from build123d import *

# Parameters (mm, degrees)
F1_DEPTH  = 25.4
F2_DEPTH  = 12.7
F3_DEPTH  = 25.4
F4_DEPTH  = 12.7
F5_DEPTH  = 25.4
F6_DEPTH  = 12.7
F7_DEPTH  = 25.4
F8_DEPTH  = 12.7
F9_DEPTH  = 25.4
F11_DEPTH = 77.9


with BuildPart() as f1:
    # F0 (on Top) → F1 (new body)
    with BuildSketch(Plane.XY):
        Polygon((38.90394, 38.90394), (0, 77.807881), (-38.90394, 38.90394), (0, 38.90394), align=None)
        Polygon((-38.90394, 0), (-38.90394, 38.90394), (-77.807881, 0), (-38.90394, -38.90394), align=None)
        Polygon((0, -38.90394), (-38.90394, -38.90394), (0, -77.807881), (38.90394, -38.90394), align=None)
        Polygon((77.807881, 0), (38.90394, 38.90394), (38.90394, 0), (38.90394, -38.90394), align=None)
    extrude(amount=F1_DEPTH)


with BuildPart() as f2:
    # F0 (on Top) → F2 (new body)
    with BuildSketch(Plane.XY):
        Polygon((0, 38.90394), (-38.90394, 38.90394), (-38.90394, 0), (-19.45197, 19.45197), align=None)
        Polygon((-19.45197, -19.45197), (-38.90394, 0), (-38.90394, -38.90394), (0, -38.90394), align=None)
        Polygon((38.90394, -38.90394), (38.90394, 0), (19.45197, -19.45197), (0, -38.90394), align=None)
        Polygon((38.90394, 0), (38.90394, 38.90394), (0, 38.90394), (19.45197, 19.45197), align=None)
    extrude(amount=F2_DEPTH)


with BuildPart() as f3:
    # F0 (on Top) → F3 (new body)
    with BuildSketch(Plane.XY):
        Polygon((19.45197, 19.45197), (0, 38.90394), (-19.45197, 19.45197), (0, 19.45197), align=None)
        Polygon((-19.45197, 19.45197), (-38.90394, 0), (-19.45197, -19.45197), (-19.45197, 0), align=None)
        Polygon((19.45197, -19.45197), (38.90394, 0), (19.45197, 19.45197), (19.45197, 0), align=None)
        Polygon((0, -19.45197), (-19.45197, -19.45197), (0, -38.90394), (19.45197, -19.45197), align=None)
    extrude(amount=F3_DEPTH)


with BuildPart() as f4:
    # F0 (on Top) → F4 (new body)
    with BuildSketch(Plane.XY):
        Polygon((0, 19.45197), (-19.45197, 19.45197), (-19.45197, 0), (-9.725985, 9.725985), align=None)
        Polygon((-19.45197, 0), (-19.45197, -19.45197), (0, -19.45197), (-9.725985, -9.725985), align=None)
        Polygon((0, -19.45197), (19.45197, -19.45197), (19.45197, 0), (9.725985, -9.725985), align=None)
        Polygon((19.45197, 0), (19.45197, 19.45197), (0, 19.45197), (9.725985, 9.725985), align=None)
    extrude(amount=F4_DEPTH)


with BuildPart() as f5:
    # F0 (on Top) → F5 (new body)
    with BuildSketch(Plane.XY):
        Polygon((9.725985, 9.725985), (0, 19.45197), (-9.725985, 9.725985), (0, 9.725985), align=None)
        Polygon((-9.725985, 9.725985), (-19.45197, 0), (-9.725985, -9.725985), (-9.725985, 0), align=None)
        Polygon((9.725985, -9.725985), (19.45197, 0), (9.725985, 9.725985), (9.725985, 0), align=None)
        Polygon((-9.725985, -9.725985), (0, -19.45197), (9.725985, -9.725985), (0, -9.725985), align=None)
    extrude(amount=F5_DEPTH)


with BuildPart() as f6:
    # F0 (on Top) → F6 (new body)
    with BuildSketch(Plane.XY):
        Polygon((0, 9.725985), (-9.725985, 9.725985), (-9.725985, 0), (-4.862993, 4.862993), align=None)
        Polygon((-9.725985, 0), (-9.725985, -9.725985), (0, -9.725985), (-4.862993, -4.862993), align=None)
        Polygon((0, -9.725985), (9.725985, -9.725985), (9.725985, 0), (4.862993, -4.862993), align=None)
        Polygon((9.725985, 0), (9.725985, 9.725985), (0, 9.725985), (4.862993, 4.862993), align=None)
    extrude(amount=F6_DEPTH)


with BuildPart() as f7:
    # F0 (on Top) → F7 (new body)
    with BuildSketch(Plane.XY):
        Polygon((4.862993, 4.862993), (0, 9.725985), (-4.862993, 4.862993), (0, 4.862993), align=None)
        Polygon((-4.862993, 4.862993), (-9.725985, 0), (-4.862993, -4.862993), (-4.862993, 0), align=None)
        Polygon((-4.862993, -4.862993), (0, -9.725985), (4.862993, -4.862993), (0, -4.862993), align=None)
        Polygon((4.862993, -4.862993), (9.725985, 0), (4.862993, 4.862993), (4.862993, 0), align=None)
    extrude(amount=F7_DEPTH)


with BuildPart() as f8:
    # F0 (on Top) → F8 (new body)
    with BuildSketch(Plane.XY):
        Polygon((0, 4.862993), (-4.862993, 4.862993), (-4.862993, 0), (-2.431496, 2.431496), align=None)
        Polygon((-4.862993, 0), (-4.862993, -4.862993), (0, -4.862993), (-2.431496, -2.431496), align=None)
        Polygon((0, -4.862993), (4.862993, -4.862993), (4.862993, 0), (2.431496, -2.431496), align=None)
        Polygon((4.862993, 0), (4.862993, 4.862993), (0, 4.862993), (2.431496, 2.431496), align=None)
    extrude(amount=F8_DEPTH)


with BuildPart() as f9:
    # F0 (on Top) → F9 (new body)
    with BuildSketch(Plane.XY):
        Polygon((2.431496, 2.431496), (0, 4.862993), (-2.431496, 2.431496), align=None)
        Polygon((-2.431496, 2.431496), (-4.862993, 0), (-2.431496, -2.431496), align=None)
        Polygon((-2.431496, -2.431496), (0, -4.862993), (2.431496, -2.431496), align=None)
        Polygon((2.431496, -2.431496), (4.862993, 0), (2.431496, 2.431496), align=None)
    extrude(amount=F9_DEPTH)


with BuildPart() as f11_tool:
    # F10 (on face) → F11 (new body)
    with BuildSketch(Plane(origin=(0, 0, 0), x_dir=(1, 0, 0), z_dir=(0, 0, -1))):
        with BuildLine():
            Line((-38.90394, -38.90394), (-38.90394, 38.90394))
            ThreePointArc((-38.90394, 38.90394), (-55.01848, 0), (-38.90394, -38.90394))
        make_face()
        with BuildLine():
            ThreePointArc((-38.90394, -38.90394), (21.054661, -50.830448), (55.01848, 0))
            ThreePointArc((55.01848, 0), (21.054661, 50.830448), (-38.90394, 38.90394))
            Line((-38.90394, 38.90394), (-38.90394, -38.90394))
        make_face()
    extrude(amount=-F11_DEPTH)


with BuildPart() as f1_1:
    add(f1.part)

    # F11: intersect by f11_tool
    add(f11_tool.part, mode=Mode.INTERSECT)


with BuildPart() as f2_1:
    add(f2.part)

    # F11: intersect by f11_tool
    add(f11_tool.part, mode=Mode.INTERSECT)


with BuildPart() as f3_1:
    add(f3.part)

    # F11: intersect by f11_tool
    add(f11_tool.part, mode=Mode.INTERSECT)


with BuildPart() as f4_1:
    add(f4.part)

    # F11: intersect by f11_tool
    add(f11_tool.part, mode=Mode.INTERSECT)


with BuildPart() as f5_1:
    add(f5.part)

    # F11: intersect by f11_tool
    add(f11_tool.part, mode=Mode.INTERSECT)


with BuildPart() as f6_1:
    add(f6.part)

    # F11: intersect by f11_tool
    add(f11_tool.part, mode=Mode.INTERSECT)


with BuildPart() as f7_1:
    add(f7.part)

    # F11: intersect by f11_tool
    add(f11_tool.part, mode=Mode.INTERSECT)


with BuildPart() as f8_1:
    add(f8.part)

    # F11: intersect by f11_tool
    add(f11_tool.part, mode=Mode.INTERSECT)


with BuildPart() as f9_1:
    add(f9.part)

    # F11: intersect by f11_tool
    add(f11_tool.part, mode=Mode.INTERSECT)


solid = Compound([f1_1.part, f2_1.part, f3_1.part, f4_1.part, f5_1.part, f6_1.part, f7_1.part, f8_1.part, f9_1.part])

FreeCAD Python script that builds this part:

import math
import FreeCAD as App
import Part
import Sketcher
from FreeCAD import Vector
Q = App.Units.Quantity

doc = App.newDocument("Part")
body = doc.addObject("PartDesign::Body", "Body")
body.AllowCompound = True

# Sketch on XY plane
sketch1 = body.newObject("Sketcher::SketchObject", "Sketch")
sketch1.AttachmentSupport = (doc.getObject("XY_Plane"), [""])
sketch1.MapMode = "FlatFace"
sketch1.addGeometry([
    Part.LineSegment(Vector(39, 39, 0), Vector(0, 78, 0)),  # 0
    Part.LineSegment(Vector(0, 78, 0), Vector(-39, 39, 0)),  # 1
    Part.LineSegment(Vector(-39, 39, 0), Vector(39, 39, 0)),  # 2
    Part.LineSegment(Vector(-39, 39, 0), Vector(-78, 0, 0)),  # 3
    Part.LineSegment(Vector(-78, 0, 0), Vector(-39, -39, 0)),  # 4
    Part.LineSegment(Vector(-39, -39, 0), Vector(-39, 39, 0)),  # 5
    Part.LineSegment(Vector(-39, -39, 0), Vector(0, -78, 0)),  # 6
    Part.LineSegment(Vector(0, -78, 0), Vector(39, -39, 0)),  # 7
    Part.LineSegment(Vector(39, -39, 0), Vector(-39, -39, 0)),  # 8
    Part.LineSegment(Vector(78, 0, 0), Vector(39, 39, 0)),  # 9
    Part.LineSegment(Vector(39, 39, 0), Vector(39, -39, 0)),  # 10
    Part.LineSegment(Vector(39, -39, 0), Vector(78, 0, 0)),  # 11
], False)
sketch1.addConstraint([
    Sketcher.Constraint("Coincident", 0, 2, 1, 1),
    Sketcher.Constraint("Coincident", 1, 2, 2, 1),
    Sketcher.Constraint("Coincident", 2, 2, 0, 1),
    Sketcher.Constraint("Coincident", 3, 2, 4, 1),
    Sketcher.Constraint("Coincident", 4, 2, 5, 1),
    Sketcher.Constraint("Coincident", 5, 2, 3, 1),
    Sketcher.Constraint("Coincident", 6, 2, 7, 1),
    Sketcher.Constraint("Coincident", 7, 2, 8, 1),
    Sketcher.Constraint("Coincident", 8, 2, 6, 1),
    Sketcher.Constraint("Coincident", 9, 2, 10, 1),
    Sketcher.Constraint("Coincident", 10, 2, 11, 1),
    Sketcher.Constraint("Coincident", 11, 2, 9, 1),
    Sketcher.Constraint("Horizontal", 2),
    Sketcher.Constraint("Vertical", 5),
    Sketcher.Constraint("Horizontal", 8),
    Sketcher.Constraint("Vertical", 10),
    Sketcher.Constraint("Coincident", 5, 2, 1, 2),
    Sketcher.Constraint("Coincident", 8, 2, 4, 2),
    Sketcher.Constraint("Coincident", 9, 2, 2, 2),
    Sketcher.Constraint("Coincident", 10, 2, 7, 2),
    Sketcher.Constraint("Symmetric", 2, 2, 4, 2, -1, 1),
    Sketcher.Constraint("Symmetric", 0, 2, 6, 2, -1, 1),
    Sketcher.Constraint("Symmetric", 3, 2, 11, 2, -1, 1),
    Sketcher.Constraint("PointOnObject", 0, 2, -2),
    Sketcher.Constraint("PointOnObject", 3, 2, -1),
    Sketcher.Constraint("Perpendicular", 0, 1),
    Sketcher.Constraint("Parallel", 1, 3),
    Sketcher.Constraint("Equal", 8, 5),
    Sketcher.Constraint("DistanceX", 2, 1, 2, 2, 77.80788),
])
pad1 = body.newObject("PartDesign::Pad", "Pad")
pad1.Profile = sketch1
pad1.Length = Q("1 in")
body2 = doc.addObject("PartDesign::Body", "Body001")
body2.AllowCompound = True

# Sketch on XY plane
sketch2 = body2.newObject("Sketcher::SketchObject", "Sketch001")
sketch2.AttachmentSupport = (doc.getObject("XY_Plane001"), [""])
sketch2.MapMode = "FlatFace"
sketch2.addGeometry([
    Part.LineSegment(Vector(0, 39, 0), Vector(-39, 39, 0)),  # 0
    Part.LineSegment(Vector(-39, 39, 0), Vector(-39, 0, 0)),  # 1
    Part.LineSegment(Vector(-39, 0, 0), Vector(0, 39, 0)),  # 2
    Part.LineSegment(Vector(-39, 0, 0), Vector(-39, -39, 0)),  # 3
    Part.LineSegment(Vector(-39, -39, 0), Vector(0, -39, 0)),  # 4
    Part.LineSegment(Vector(0, -39, 0), Vector(-39, 0, 0)),  # 5
    Part.LineSegment(Vector(39, -39, 0), Vector(39, 0, 0)),  # 6
    Part.LineSegment(Vector(39, 0, 0), Vector(0, -39, 0)),  # 7
    Part.LineSegment(Vector(0, -39, 0), Vector(39, -39, 0)),  # 8
    Part.LineSegment(Vector(39, 0, 0), Vector(39, 39, 0)),  # 9
    Part.LineSegment(Vector(39, 39, 0), Vector(0, 39, 0)),  # 10
    Part.LineSegment(Vector(0, 39, 0), Vector(39, 0, 0)),  # 11
], False)
sketch2.addConstraint([
    Sketcher.Constraint("Coincident", 0, 2, 1, 1),
    Sketcher.Constraint("Coincident", 1, 2, 2, 1),
    Sketcher.Constraint("Coincident", 2, 2, 0, 1),
    Sketcher.Constraint("Coincident", 3, 2, 4, 1),
    Sketcher.Constraint("Coincident", 4, 2, 5, 1),
    Sketcher.Constraint("Coincident", 5, 2, 3, 1),
    Sketcher.Constraint("Coincident", 6, 2, 7, 1),
    Sketcher.Constraint("Coincident", 7, 2, 8, 1),
    Sketcher.Constraint("Coincident", 8, 2, 6, 1),
    Sketcher.Constraint("Coincident", 9, 2, 10, 1),
    Sketcher.Constraint("Coincident", 10, 2, 11, 1),
    Sketcher.Constraint("Coincident", 11, 2, 9, 1),
    Sketcher.Constraint("Horizontal", 0),
    Sketcher.Constraint("Vertical", 1),
    Sketcher.Constraint("Vertical", 3),
    Sketcher.Constraint("Horizontal", 4),
    Sketcher.Constraint("Vertical", 6),
    Sketcher.Constraint("Horizontal", 8),
    Sketcher.Constraint("Vertical", 9),
    Sketcher.Constraint("Horizontal", 10),
    Sketcher.Constraint("Coincident", 5, 2, 1, 2),
    Sketcher.Constraint("Coincident", 7, 2, 4, 2),
    Sketcher.Constraint("Coincident", 10, 2, 2, 2),
    Sketcher.Constraint("Coincident", 11, 2, 6, 2),
    Sketcher.Constraint("Symmetric", 2, 2, 4, 2, -1, 1),
    Sketcher.Constraint("Symmetric", 1, 2, 6, 2, -1, 1),
    Sketcher.Constraint("PointOnObject", 1, 2, -1),
    Sketcher.Constraint("PointOnObject", 2, 2, -2),
    Sketcher.Constraint("Perpendicular", 2, 5),
    Sketcher.Constraint("DistanceX", 0, 2, 0, 1, 38.90394),
])
pad2 = body2.newObject("PartDesign::Pad", "Pad001")
pad2.Profile = sketch2
pad2.Length = Q("0.5 in")
body3 = doc.addObject("PartDesign::Body", "Body002")
body3.AllowCompound = True

# Sketch on XY plane
sketch3 = body3.newObject("Sketcher::SketchObject", "Sketch002")
sketch3.AttachmentSupport = (doc.getObject("XY_Plane002"), [""])
sketch3.MapMode = "FlatFace"
sketch3.addGeometry([
    Part.LineSegment(Vector(19, 19, 0), Vector(0, 39, 0)),  # 0
    Part.LineSegment(Vector(0, 39, 0), Vector(-19, 19, 0)),  # 1
    Part.LineSegment(Vector(-19, 19, 0), Vector(19, 19, 0)),  # 2
    Part.LineSegment(Vector(-19, 19, 0), Vector(-39, 0, 0)),  # 3
    Part.LineSegment(Vector(-39, 0, 0), Vector(-19, -19, 0)),  # 4
    Part.LineSegment(Vector(-19, -19, 0), Vector(-19, 19, 0)),  # 5
    Part.LineSegment(Vector(19, -19, 0), Vector(39, 0, 0)),  # 6
    Part.LineSegment(Vector(39, 0, 0), Vector(19, 19, 0)),  # 7
    Part.LineSegment(Vector(19, 19, 0), Vector(19, -19, 0)),  # 8
    Part.LineSegment(Vector(-19, -19, 0), Vector(0, -39, 0)),  # 9
    Part.LineSegment(Vector(0, -39, 0), Vector(19, -19, 0)),  # 10
    Part.LineSegment(Vector(19, -19, 0), Vector(-19, -19, 0)),  # 11
], False)
sketch3.addConstraint([
    Sketcher.Constraint("Coincident", 0, 2, 1, 1),
    Sketcher.Constraint("Coincident", 1, 2, 2, 1),
    Sketcher.Constraint("Coincident", 2, 2, 0, 1),
    Sketcher.Constraint("Coincident", 3, 2, 4, 1),
    Sketcher.Constraint("Coincident", 4, 2, 5, 1),
    Sketcher.Constraint("Coincident", 5, 2, 3, 1),
    Sketcher.Constraint("Coincident", 6, 2, 7, 1),
    Sketcher.Constraint("Coincident", 7, 2, 8, 1),
    Sketcher.Constraint("Coincident", 8, 2, 6, 1),
    Sketcher.Constraint("Coincident", 9, 2, 10, 1),
    Sketcher.Constraint("Coincident", 10, 2, 11, 1),
    Sketcher.Constraint("Coincident", 11, 2, 9, 1),
    Sketcher.Constraint("Horizontal", 2),
    Sketcher.Constraint("Vertical", 5),
    Sketcher.Constraint("Vertical", 8),
    Sketcher.Constraint("Horizontal", 11),
    Sketcher.Constraint("Coincident", 5, 2, 1, 2),
    Sketcher.Constraint("Coincident", 7, 2, 2, 2),
    Sketcher.Constraint("Coincident", 10, 2, 8, 2),
    Sketcher.Constraint("Coincident", 11, 2, 4, 2),
    Sketcher.Constraint("Symmetric", 2, 2, 4, 2, -1, 1),
    Sketcher.Constraint("Symmetric", 3, 2, 6, 2, -1, 1),
    Sketcher.Constraint("Symmetric", 0, 2, 9, 2, -1, 1),
    Sketcher.Constraint("PointOnObject", 0, 2, -2),
    Sketcher.Constraint("PointOnObject", 3, 2, -1),
    Sketcher.Constraint("Perpendicular", 0, 1),
    Sketcher.Constraint("Parallel", 1, 3),
    Sketcher.Constraint("Equal", 11, 5),
    Sketcher.Constraint("DistanceX", 2, 1, 2, 2, 38.90394),
])
pad3 = body3.newObject("PartDesign::Pad", "Pad002")
pad3.Profile = sketch3
pad3.Length = Q("1 in")
body4 = doc.addObject("PartDesign::Body", "Body003")
body4.AllowCompound = True

# Sketch on XY plane
sketch4 = body4.newObject("Sketcher::SketchObject", "Sketch003")
sketch4.AttachmentSupport = (doc.getObject("XY_Plane003"), [""])
sketch4.MapMode = "FlatFace"
sketch4.addGeometry([
    Part.LineSegment(Vector(0, 19, 0), Vector(-19, 19, 0)),  # 0
    Part.LineSegment(Vector(-19, 19, 0), Vector(-19, 0, 0)),  # 1
    Part.LineSegment(Vector(-19, 0, 0), Vector(0, 19, 0)),  # 2
    Part.LineSegment(Vector(-19, 0, 0), Vector(-19, -19, 0)),  # 3
    Part.LineSegment(Vector(-19, -19, 0), Vector(0, -19, 0)),  # 4
    Part.LineSegment(Vector(0, -19, 0), Vector(-19, 0, 0)),  # 5
    Part.LineSegment(Vector(0, -19, 0), Vector(19, -19, 0)),  # 6
    Part.LineSegment(Vector(19, -19, 0), Vector(19, 0, 0)),  # 7
    Part.LineSegment(Vector(19, 0, 0), Vector(0, -19, 0)),  # 8
    Part.LineSegment(Vector(19, 0, 0), Vector(19, 19, 0)),  # 9
    Part.LineSegment(Vector(19, 19, 0), Vector(0, 19, 0)),  # 10
    Part.LineSegment(Vector(0, 19, 0), Vector(19, 0, 0)),  # 11
], False)
sketch4.addConstraint([
    Sketcher.Constraint("Coincident", 0, 2, 1, 1),
    Sketcher.Constraint("Coincident", 1, 2, 2, 1),
    Sketcher.Constraint("Coincident", 2, 2, 0, 1),
    Sketcher.Constraint("Coincident", 3, 2, 4, 1),
    Sketcher.Constraint("Coincident", 4, 2, 5, 1),
    Sketcher.Constraint("Coincident", 5, 2, 3, 1),
    Sketcher.Constraint("Coincident", 6, 2, 7, 1),
    Sketcher.Constraint("Coincident", 7, 2, 8, 1),
    Sketcher.Constraint("Coincident", 8, 2, 6, 1),
    Sketcher.Constraint("Coincident", 9, 2, 10, 1),
    Sketcher.Constraint("Coincident", 10, 2, 11, 1),
    Sketcher.Constraint("Coincident", 11, 2, 9, 1),
    Sketcher.Constraint("Horizontal", 0),
    Sketcher.Constraint("Vertical", 1),
    Sketcher.Constraint("Vertical", 3),
    Sketcher.Constraint("Horizontal", 4),
    Sketcher.Constraint("Horizontal", 6),
    Sketcher.Constraint("Vertical", 7),
    Sketcher.Constraint("Vertical", 9),
    Sketcher.Constraint("Horizontal", 10),
    Sketcher.Constraint("Coincident", 5, 2, 1, 2),
    Sketcher.Constraint("Coincident", 8, 2, 4, 2),
    Sketcher.Constraint("Coincident", 10, 2, 2, 2),
    Sketcher.Constraint("Coincident", 11, 2, 7, 2),
    Sketcher.Constraint("Symmetric", 2, 2, 4, 2, -1, 1),
    Sketcher.Constraint("Symmetric", 1, 2, 7, 2, -1, 1),
    Sketcher.Constraint("PointOnObject", 1, 2, -1),
    Sketcher.Constraint("PointOnObject", 2, 2, -2),
    Sketcher.Constraint("Perpendicular", 2, 5),
    Sketcher.Constraint("DistanceX", 0, 2, 0, 1, 19.45197),
])
pad4 = body4.newObject("PartDesign::Pad", "Pad003")
pad4.Profile = sketch4
pad4.Length = Q("0.5 in")
body5 = doc.addObject("PartDesign::Body", "Body004")
body5.AllowCompound = True

# Sketch on XY plane
sketch5 = body5.newObject("Sketcher::SketchObject", "Sketch004")
sketch5.AttachmentSupport = (doc.getObject("XY_Plane004"), [""])
sketch5.MapMode = "FlatFace"
sketch5.addGeometry([
    Part.LineSegment(Vector(10, 10, 0), Vector(0, 19, 0)),  # 0
    Part.LineSegment(Vector(0, 19, 0), Vector(-10, 10, 0)),  # 1
    Part.LineSegment(Vector(-10, 10, 0), Vector(10, 10, 0)),  # 2
    Part.LineSegment(Vector(-10, 10, 0), Vector(-19, 0, 0)),  # 3
    Part.LineSegment(Vector(-19, 0, 0), Vector(-10, -10, 0)),  # 4
    Part.LineSegment(Vector(-10, -10, 0), Vector(-10, 10, 0)),  # 5
    Part.LineSegment(Vector(10, -10, 0), Vector(19, 0, 0)),  # 6
    Part.LineSegment(Vector(19, 0, 0), Vector(10, 10, 0)),  # 7
    Part.LineSegment(Vector(10, 10, 0), Vector(10, -10, 0)),  # 8
    Part.LineSegment(Vector(-10, -10, 0), Vector(0, -19, 0)),  # 9
    Part.LineSegment(Vector(0, -19, 0), Vector(10, -10, 0)),  # 10
    Part.LineSegment(Vector(10, -10, 0), Vector(-10, -10, 0)),  # 11
], False)
sketch5.addConstraint([
    Sketcher.Constraint("Coincident", 0, 2, 1, 1),
    Sketcher.Constraint("Coincident", 1, 2, 2, 1),
    Sketcher.Constraint("Coincident", 2, 2, 0, 1),
    Sketcher.Constraint("Coincident", 3, 2, 4, 1),
    Sketcher.Constraint("Coincident", 4, 2, 5, 1),
    Sketcher.Constraint("Coincident", 5, 2, 3, 1),
    Sketcher.Constraint("Coincident", 6, 2, 7, 1),
    Sketcher.Constraint("Coincident", 7, 2, 8, 1),
    Sketcher.Constraint("Coincident", 8, 2, 6, 1),
    Sketcher.Constraint("Coincident", 9, 2, 10, 1),
    Sketcher.Constraint("Coincident", 10, 2, 11, 1),
    Sketcher.Constraint("Coincident", 11, 2, 9, 1),
    Sketcher.Constraint("Horizontal", 2),
    Sketcher.Constraint("Vertical", 5),
    Sketcher.Constraint("Vertical", 8),
    Sketcher.Constraint("Horizontal", 11),
    Sketcher.Constraint("Coincident", 5, 2, 1, 2),
    Sketcher.Constraint("Coincident", 7, 2, 2, 2),
    Sketcher.Constraint("Coincident", 10, 2, 8, 2),
    Sketcher.Constraint("Coincident", 11, 2, 4, 2),
    Sketcher.Constraint("Symmetric", 2, 2, 4, 2, -1, 1),
    Sketcher.Constraint("Symmetric", 3, 2, 6, 2, -1, 1),
    Sketcher.Constraint("Symmetric", 0, 2, 9, 2, -1, 1),
    Sketcher.Constraint("PointOnObject", 0, 2, -2),
    Sketcher.Constraint("PointOnObject", 3, 2, -1),
    Sketcher.Constraint("Perpendicular", 0, 1),
    Sketcher.Constraint("Parallel", 1, 3),
    Sketcher.Constraint("Equal", 11, 5),
    Sketcher.Constraint("DistanceX", 2, 1, 2, 2, 19.45197),
])
pad5 = body5.newObject("PartDesign::Pad", "Pad004")
pad5.Profile = sketch5
pad5.Length = Q("1 in")
body6 = doc.addObject("PartDesign::Body", "Body005")
body6.AllowCompound = True

# Sketch on XY plane
sketch6 = body6.newObject("Sketcher::SketchObject", "Sketch005")
sketch6.AttachmentSupport = (doc.getObject("XY_Plane005"), [""])
sketch6.MapMode = "FlatFace"
sketch6.addGeometry([
    Part.LineSegment(Vector(0, 10, 0), Vector(-10, 10, 0)),  # 0
    Part.LineSegment(Vector(-10, 10, 0), Vector(-10, 0, 0)),  # 1
    Part.LineSegment(Vector(-10, 0, 0), Vector(-5, 5, 0)),  # 2
    Part.LineSegment(Vector(-5, 5, 0), Vector(0, 10, 0)),  # 3
    Part.LineSegment(Vector(-10, 0, 0), Vector(-10, -10, 0)),  # 4
    Part.LineSegment(Vector(-10, -10, 0), Vector(0, -10, 0)),  # 5
    Part.LineSegment(Vector(0, -10, 0), Vector(-5, -5, 0)),  # 6
    Part.LineSegment(Vector(-5, -5, 0), Vector(-10, 0, 0)),  # 7
    Part.LineSegment(Vector(0, -10, 0), Vector(10, -10, 0)),  # 8
    Part.LineSegment(Vector(10, -10, 0), Vector(10, 0, 0)),  # 9
    Part.LineSegment(Vector(10, 0, 0), Vector(5, -5, 0)),  # 10
    Part.LineSegment(Vector(5, -5, 0), Vector(0, -10, 0)),  # 11
    Part.LineSegment(Vector(10, 0, 0), Vector(10, 10, 0)),  # 12
    Part.LineSegment(Vector(10, 10, 0), Vector(0, 10, 0)),  # 13
    Part.LineSegment(Vector(0, 10, 0), Vector(5, 5, 0)),  # 14
    Part.LineSegment(Vector(5, 5, 0), Vector(10, 0, 0)),  # 15
], False)
sketch6.addConstraint([
    Sketcher.Constraint("Coincident", 0, 2, 1, 1),
    Sketcher.Constraint("Coincident", 1, 2, 2, 1),
    Sketcher.Constraint("Coincident", 2, 2, 3, 1),
    Sketcher.Constraint("Coincident", 3, 2, 0, 1),
    Sketcher.Constraint("Coincident", 4, 2, 5, 1),
    Sketcher.Constraint("Coincident", 5, 2, 6, 1),
    Sketcher.Constraint("Coincident", 6, 2, 7, 1),
    Sketcher.Constraint("Coincident", 7, 2, 4, 1),
    Sketcher.Constraint("Coincident", 8, 2, 9, 1),
    Sketcher.Constraint("Coincident", 9, 2, 10, 1),
    Sketcher.Constraint("Coincident", 10, 2, 11, 1),
    Sketcher.Constraint("Coincident", 11, 2, 8, 1),
    Sketcher.Constraint("Coincident", 12, 2, 13, 1),
    Sketcher.Constraint("Coincident", 13, 2, 14, 1),
    Sketcher.Constraint("Coincident", 14, 2, 15, 1),
    Sketcher.Constraint("Coincident", 15, 2, 12, 1),
    Sketcher.Constraint("Horizontal", 0),
    Sketcher.Constraint("Vertical", 1),
    Sketcher.Constraint("Vertical", 4),
    Sketcher.Constraint("Horizontal", 5),
    Sketcher.Constraint("Horizontal", 8),
    Sketcher.Constraint("Vertical", 9),
    Sketcher.Constraint("Vertical", 12),
    Sketcher.Constraint("Horizontal", 13),
    Sketcher.Constraint("Coincident", 7, 2, 1, 2),
    Sketcher.Constraint("Coincident", 11, 2, 5, 2),
    Sketcher.Constraint("Coincident", 13, 2, 3, 2),
    Sketcher.Constraint("Coincident", 15, 2, 9, 2),
    Sketcher.Constraint("Symmetric", 3, 2, 5, 2, -1, 1),
    Sketcher.Constraint("Symmetric", 1, 2, 9, 2, -1, 1),
    Sketcher.Constraint("Symmetric", 2, 2, 10, 2, -1, 1),
    Sketcher.Constraint("Symmetric", 6, 2, 14, 2, -1, 1),
    Sketcher.Constraint("Symmetric", 6, 2, 10, 2, -2),
    Sketcher.Constraint("PointOnObject", 1, 2, -1),
    Sketcher.Constraint("PointOnObject", 3, 2, -2),
    Sketcher.Constraint("Parallel", 2, 3),
    Sketcher.Constraint("Perpendicular", 3, 6),
    Sketcher.Constraint("Equal", 2, 3),
    Sketcher.Constraint("Distance", 2, 6.87731),
])
pad6 = body6.newObject("PartDesign::Pad", "Pad005")
pad6.Profile = sketch6
pad6.Length = Q("0.5 in")
body7 = doc.addObject("PartDesign::Body", "Body006")
body7.AllowCompound = True

# Sketch on XY plane
sketch7 = body7.newObject("Sketcher::SketchObject", "Sketch006")
sketch7.AttachmentSupport = (doc.getObject("XY_Plane006"), [""])
sketch7.MapMode = "FlatFace"
sketch7.addGeometry([
    Part.LineSegment(Vector(5, 5, 0), Vector(0, 10, 0)),  # 0
    Part.LineSegment(Vector(0, 10, 0), Vector(-5, 5, 0)),  # 1
    Part.LineSegment(Vector(-5, 5, 0), Vector(5, 5, 0)),  # 2
    Part.LineSegment(Vector(-5, 5, 0), Vector(-10, 0, 0)),  # 3
    Part.LineSegment(Vector(-10, 0, 0), Vector(-5, -5, 0)),  # 4
    Part.LineSegment(Vector(-5, -5, 0), Vector(-5, 5, 0)),  # 5
    Part.LineSegment(Vector(-5, -5, 0), Vector(0, -10, 0)),  # 6
    Part.LineSegment(Vector(0, -10, 0), Vector(5, -5, 0)),  # 7
    Part.LineSegment(Vector(5, -5, 0), Vector(-5, -5, 0)),  # 8
    Part.LineSegment(Vector(5, -5, 0), Vector(10, 0, 0)),  # 9
    Part.LineSegment(Vector(10, 0, 0), Vector(5, 5, 0)),  # 10
    Part.LineSegment(Vector(5, 5, 0), Vector(5, -5, 0)),  # 11
], False)
sketch7.addConstraint([
    Sketcher.Constraint("Coincident", 0, 2, 1, 1),
    Sketcher.Constraint("Coincident", 1, 2, 2, 1),
    Sketcher.Constraint("Coincident", 2, 2, 0, 1),
    Sketcher.Constraint("Coincident", 3, 2, 4, 1),
    Sketcher.Constraint("Coincident", 4, 2, 5, 1),
    Sketcher.Constraint("Coincident", 5, 2, 3, 1),
    Sketcher.Constraint("Coincident", 6, 2, 7, 1),
    Sketcher.Constraint("Coincident", 7, 2, 8, 1),
    Sketcher.Constraint("Coincident", 8, 2, 6, 1),
    Sketcher.Constraint("Coincident", 9, 2, 10, 1),
    Sketcher.Constraint("Coincident", 10, 2, 11, 1),
    Sketcher.Constraint("Coincident", 11, 2, 9, 1),
    Sketcher.Constraint("Horizontal", 2),
    Sketcher.Constraint("Vertical", 5),
    Sketcher.Constraint("Horizontal", 8),
    Sketcher.Constraint("Vertical", 11),
    Sketcher.Constraint("Coincident", 5, 2, 1, 2),
    Sketcher.Constraint("Coincident", 8, 2, 4, 2),
    Sketcher.Constraint("Coincident", 10, 2, 2, 2),
    Sketcher.Constraint("Coincident", 11, 2, 7, 2),
    Sketcher.Constraint("Symmetric", 2, 2, 4, 2, -1, 1),
    Sketcher.Constraint("Symmetric", 0, 2, 6, 2, -1, 1),
    Sketcher.Constraint("Symmetric", 3, 2, 9, 2, -1, 1),
    Sketcher.Constraint("PointOnObject", 0, 2, -2),
    Sketcher.Constraint("PointOnObject", 3, 2, -1),
    Sketcher.Constraint("Perpendicular", 0, 1),
    Sketcher.Constraint("Parallel", 1, 3),
    Sketcher.Constraint("Equal", 8, 5),
    Sketcher.Constraint("Distance", 0, 6.87731),
])
pad7 = body7.newObject("PartDesign::Pad", "Pad006")
pad7.Profile = sketch7
pad7.Length = Q("1 in")
body8 = doc.addObject("PartDesign::Body", "Body007")
body8.AllowCompound = True

# Sketch on XY plane
sketch8 = body8.newObject("Sketcher::SketchObject", "Sketch007")
sketch8.AttachmentSupport = (doc.getObject("XY_Plane007"), [""])
sketch8.MapMode = "FlatFace"
sketch8.addGeometry([
    Part.LineSegment(Vector(0, 4.9, 0), Vector(-4.9, 4.9, 0)),  # 0
    Part.LineSegment(Vector(-4.9, 4.9, 0), Vector(-4.9, 0, 0)),  # 1
    Part.LineSegment(Vector(-4.9, 0, 0), Vector(-2.4, 2.4, 0)),  # 2
    Part.LineSegment(Vector(-2.4, 2.4, 0), Vector(0, 4.9, 0)),  # 3
    Part.LineSegment(Vector(-4.9, 0, 0), Vector(-4.9, -4.9, 0)),  # 4
    Part.LineSegment(Vector(-4.9, -4.9, 0), Vector(0, -4.9, 0)),  # 5
    Part.LineSegment(Vector(0, -4.9, 0), Vector(-2.4, -2.4, 0)),  # 6
    Part.LineSegment(Vector(-2.4, -2.4, 0), Vector(-4.9, 0, 0)),  # 7
    Part.LineSegment(Vector(0, -4.9, 0), Vector(4.9, -4.9, 0)),  # 8
    Part.LineSegment(Vector(4.9, -4.9, 0), Vector(4.9, 0, 0)),  # 9
    Part.LineSegment(Vector(4.9, 0, 0), Vector(2.4, -2.4, 0)),  # 10
    Part.LineSegment(Vector(2.4, -2.4, 0), Vector(0, -4.9, 0)),  # 11
    Part.LineSegment(Vector(4.9, 0, 0), Vector(4.9, 4.9, 0)),  # 12
    Part.LineSegment(Vector(4.9, 4.9, 0), Vector(0, 4.9, 0)),  # 13
    Part.LineSegment(Vector(0, 4.9, 0), Vector(2.4, 2.4, 0)),  # 14
    Part.LineSegment(Vector(2.4, 2.4, 0), Vector(4.9, 0, 0)),  # 15
], False)
sketch8.addConstraint([
    Sketcher.Constraint("Coincident", 0, 2, 1, 1),
    Sketcher.Constraint("Coincident", 1, 2, 2, 1),
    Sketcher.Constraint("Coincident", 2, 2, 3, 1),
    Sketcher.Constraint("Coincident", 3, 2, 0, 1),
    Sketcher.Constraint("Coincident", 4, 2, 5, 1),
    Sketcher.Constraint("Coincident", 5, 2, 6, 1),
    Sketcher.Constraint("Coincident", 6, 2, 7, 1),
    Sketcher.Constraint("Coincident", 7, 2, 4, 1),
    Sketcher.Constraint("Coincident", 8, 2, 9, 1),
    Sketcher.Constraint("Coincident", 9, 2, 10, 1),
    Sketcher.Constraint("Coincident", 10, 2, 11, 1),
    Sketcher.Constraint("Coincident", 11, 2, 8, 1),
    Sketcher.Constraint("Coincident", 12, 2, 13, 1),
    Sketcher.Constraint("Coincident", 13, 2, 14, 1),
    Sketcher.Constraint("Coincident", 14, 2, 15, 1),
    Sketcher.Constraint("Coincident", 15, 2, 12, 1),
    Sketcher.Constraint("Horizontal", 0),
    Sketcher.Constraint("Vertical", 1),
    Sketcher.Constraint("Vertical", 4),
    Sketcher.Constraint("Horizontal", 5),
    Sketcher.Constraint("Horizontal", 8),
    Sketcher.Constraint("Vertical", 9),
    Sketcher.Constraint("Vertical", 12),
    Sketcher.Constraint("Horizontal", 13),
    Sketcher.Constraint("Coincident", 7, 2, 1, 2),
    Sketcher.Constraint("Coincident", 11, 2, 5, 2),
    Sketcher.Constraint("Coincident", 13, 2, 3, 2),
    Sketcher.Constraint("Coincident", 15, 2, 9, 2),
    Sketcher.Constraint("Symmetric", 3, 2, 5, 2, -1, 1),
    Sketcher.Constraint("Symmetric", 1, 2, 9, 2, -1, 1),
    Sketcher.Constraint("Symmetric", 2, 2, 10, 2, -1, 1),
    Sketcher.Constraint("Symmetric", 6, 2, 14, 2, -1, 1),
    Sketcher.Constraint("Symmetric", 6, 2, 10, 2, -2),
    Sketcher.Constraint("PointOnObject", 1, 2, -1),
    Sketcher.Constraint("PointOnObject", 3, 2, -2),
    Sketcher.Constraint("Parallel", 2, 3),
    Sketcher.Constraint("Perpendicular", 3, 6),
    Sketcher.Constraint("Equal", 2, 3),
    Sketcher.Constraint("DistanceX", 0, 2, 0, 1, 4.862993),
])
pad8 = body8.newObject("PartDesign::Pad", "Pad007")
pad8.Profile = sketch8
pad8.Length = Q("0.5 in")
body9 = doc.addObject("PartDesign::Body", "Body008")
body9.AllowCompound = True

# Sketch on XY plane
sketch9 = body9.newObject("Sketcher::SketchObject", "Sketch008")
sketch9.AttachmentSupport = (doc.getObject("XY_Plane008"), [""])
sketch9.MapMode = "FlatFace"
sketch9.addGeometry([
    Part.LineSegment(Vector(2.4, 2.4, 0), Vector(0, 4.9, 0)),  # 0
    Part.LineSegment(Vector(0, 4.9, 0), Vector(-2.4, 2.4, 0)),  # 1
    Part.LineSegment(Vector(-2.4, 2.4, 0), Vector(2.4, 2.4, 0)),  # 2
    Part.LineSegment(Vector(-2.4, 2.4, 0), Vector(-4.9, 0, 0)),  # 3
    Part.LineSegment(Vector(-4.9, 0, 0), Vector(-2.4, -2.4, 0)),  # 4
    Part.LineSegment(Vector(-2.4, -2.4, 0), Vector(-2.4, 2.4, 0)),  # 5
    Part.LineSegment(Vector(-2.4, -2.4, 0), Vector(0, -4.9, 0)),  # 6
    Part.LineSegment(Vector(0, -4.9, 0), Vector(2.4, -2.4, 0)),  # 7
    Part.LineSegment(Vector(2.4, -2.4, 0), Vector(-2.4, -2.4, 0)),  # 8
    Part.LineSegment(Vector(2.4, -2.4, 0), Vector(4.9, 0, 0)),  # 9
    Part.LineSegment(Vector(4.9, 0, 0), Vector(2.4, 2.4, 0)),  # 10
    Part.LineSegment(Vector(2.4, 2.4, 0), Vector(2.4, -2.4, 0)),  # 11
], False)
sketch9.addConstraint([
    Sketcher.Constraint("Coincident", 0, 2, 1, 1),
    Sketcher.Constraint("Coincident", 1, 2, 2, 1),
    Sketcher.Constraint("Coincident", 2, 2, 0, 1),
    Sketcher.Constraint("Coincident", 3, 2, 4, 1),
    Sketcher.Constraint("Coincident", 4, 2, 5, 1),
    Sketcher.Constraint("Coincident", 5, 2, 3, 1),
    Sketcher.Constraint("Coincident", 6, 2, 7, 1),
    Sketcher.Constraint("Coincident", 7, 2, 8, 1),
    Sketcher.Constraint("Coincident", 8, 2, 6, 1),
    Sketcher.Constraint("Coincident", 9, 2, 10, 1),
    Sketcher.Constraint("Coincident", 10, 2, 11, 1),
    Sketcher.Constraint("Coincident", 11, 2, 9, 1),
    Sketcher.Constraint("Horizontal", 2),
    Sketcher.Constraint("Vertical", 5),
    Sketcher.Constraint("Horizontal", 8),
    Sketcher.Constraint("Vertical", 11),
    Sketcher.Constraint("Coincident", 5, 2, 1, 2),
    Sketcher.Constraint("Coincident", 8, 2, 4, 2),
    Sketcher.Constraint("Coincident", 10, 2, 2, 2),
    Sketcher.Constraint("Coincident", 11, 2, 7, 2),
    Sketcher.Constraint("Symmetric", 2, 2, 4, 2, -1, 1),
    Sketcher.Constraint("Symmetric", 0, 2, 6, 2, -1, 1),
    Sketcher.Constraint("Symmetric", 3, 2, 9, 2, -1, 1),
    Sketcher.Constraint("PointOnObject", 0, 2, -2),
    Sketcher.Constraint("PointOnObject", 3, 2, -1),
    Sketcher.Constraint("Perpendicular", 0, 1),
    Sketcher.Constraint("Parallel", 1, 3),
    Sketcher.Constraint("Equal", 8, 5),
    Sketcher.Constraint("DistanceX", 2, 1, 2, 2, 4.862992),
])
pad9 = body9.newObject("PartDesign::Pad", "Pad008")
pad9.Profile = sketch9
pad9.Length = Q("1 in")
body10 = doc.addObject("PartDesign::Body", "Body009")

# Sketch on XY plane
sketch10 = body10.newObject("Sketcher::SketchObject", "Sketch009")
sketch10.AttachmentSupport = (doc.getObject("XY_Plane009"), [""])
sketch10.MapMode = "FlatFace"
sketch10.addGeometry([
    Part.ArcOfCircle(Part.Circle(Vector(0, 0, 0), Vector(0, 0, 1), 55), math.radians(135), math.radians(225)),
    Part.ArcOfCircle(Part.Circle(Vector(0, 0, 0), Vector(0, 0, 1), 55), math.radians(0), math.radians(135)),
    Part.ArcOfCircle(Part.Circle(Vector(0, 0, 0), Vector(0, 0, 1), 55), math.radians(-135), math.radians(0)),
], False)
sketch10.addConstraint([
    Sketcher.Constraint("Tangent", 0, 1, 1, 2),
    Sketcher.Constraint("Tangent", 1, 1, 2, 2),
    Sketcher.Constraint("Tangent", 2, 1, 0, 2),
    Sketcher.Constraint("Coincident", 0, 3, -1, 1),
    Sketcher.Constraint("PointOnObject", 1, 1, -1),
    Sketcher.Constraint("Vertical", 0, 1, 2, 1),
    Sketcher.Constraint("Radius", 0, 55.018479),
    Sketcher.Constraint("DistanceX", 0, 1, -1, 1, 38.90394),
])
pad10 = body10.newObject("PartDesign::Pad", "Pad009")
pad10.Profile = sketch10
pad10.Length = 77.9
body.AllowCompound = True
doc.recompute()

body11 = doc.addObject("PartDesign::Body", "Body010")
body11.BaseFeature = body10
boolean = body.newObject("PartDesign::Boolean", "Boolean")
boolean.Type = "Common"
boolean.addObjects([body11])
doc.recompute()
body2.AllowCompound = True
doc.recompute()

body12 = doc.addObject("PartDesign::Body", "Body011")
body12.BaseFeature = body10
boolean2 = body2.newObject("PartDesign::Boolean", "Boolean001")
boolean2.Type = "Common"
boolean2.addObjects([body12])
doc.recompute()
body3.AllowCompound = True
doc.recompute()

body13 = doc.addObject("PartDesign::Body", "Body012")
body13.BaseFeature = body10
boolean3 = body3.newObject("PartDesign::Boolean", "Boolean002")
boolean3.Type = "Common"
boolean3.addObjects([body13])
doc.recompute()
body4.AllowCompound = True
doc.recompute()

body14 = doc.addObject("PartDesign::Body", "Body013")
body14.BaseFeature = body10
boolean4 = body4.newObject("PartDesign::Boolean", "Boolean003")
boolean4.Type = "Common"
boolean4.addObjects([body14])
doc.recompute()
body5.AllowCompound = True
doc.recompute()

body15 = doc.addObject("PartDesign::Body", "Body014")
body15.BaseFeature = body10
boolean5 = body5.newObject("PartDesign::Boolean", "Boolean004")
boolean5.Type = "Common"
boolean5.addObjects([body15])
doc.recompute()
body6.AllowCompound = True
doc.recompute()

body16 = doc.addObject("PartDesign::Body", "Body015")
body16.BaseFeature = body10
boolean6 = body6.newObject("PartDesign::Boolean", "Boolean005")
boolean6.Type = "Common"
boolean6.addObjects([body16])
doc.recompute()
body7.AllowCompound = True
doc.recompute()

body17 = doc.addObject("PartDesign::Body", "Body016")
body17.BaseFeature = body10
boolean7 = body7.newObject("PartDesign::Boolean", "Boolean006")
boolean7.Type = "Common"
boolean7.addObjects([body17])
doc.recompute()
body8.AllowCompound = True
doc.recompute()

body18 = doc.addObject("PartDesign::Body", "Body017")
body18.BaseFeature = body10
boolean8 = body8.newObject("PartDesign::Boolean", "Boolean007")
boolean8.Type = "Common"
boolean8.addObjects([body18])
doc.recompute()
body9.AllowCompound = True
doc.recompute()

boolean9 = body9.newObject("PartDesign::Boolean", "Boolean008")
boolean9.Type = "Common"
boolean9.addObjects([body10])

doc.recompute()
